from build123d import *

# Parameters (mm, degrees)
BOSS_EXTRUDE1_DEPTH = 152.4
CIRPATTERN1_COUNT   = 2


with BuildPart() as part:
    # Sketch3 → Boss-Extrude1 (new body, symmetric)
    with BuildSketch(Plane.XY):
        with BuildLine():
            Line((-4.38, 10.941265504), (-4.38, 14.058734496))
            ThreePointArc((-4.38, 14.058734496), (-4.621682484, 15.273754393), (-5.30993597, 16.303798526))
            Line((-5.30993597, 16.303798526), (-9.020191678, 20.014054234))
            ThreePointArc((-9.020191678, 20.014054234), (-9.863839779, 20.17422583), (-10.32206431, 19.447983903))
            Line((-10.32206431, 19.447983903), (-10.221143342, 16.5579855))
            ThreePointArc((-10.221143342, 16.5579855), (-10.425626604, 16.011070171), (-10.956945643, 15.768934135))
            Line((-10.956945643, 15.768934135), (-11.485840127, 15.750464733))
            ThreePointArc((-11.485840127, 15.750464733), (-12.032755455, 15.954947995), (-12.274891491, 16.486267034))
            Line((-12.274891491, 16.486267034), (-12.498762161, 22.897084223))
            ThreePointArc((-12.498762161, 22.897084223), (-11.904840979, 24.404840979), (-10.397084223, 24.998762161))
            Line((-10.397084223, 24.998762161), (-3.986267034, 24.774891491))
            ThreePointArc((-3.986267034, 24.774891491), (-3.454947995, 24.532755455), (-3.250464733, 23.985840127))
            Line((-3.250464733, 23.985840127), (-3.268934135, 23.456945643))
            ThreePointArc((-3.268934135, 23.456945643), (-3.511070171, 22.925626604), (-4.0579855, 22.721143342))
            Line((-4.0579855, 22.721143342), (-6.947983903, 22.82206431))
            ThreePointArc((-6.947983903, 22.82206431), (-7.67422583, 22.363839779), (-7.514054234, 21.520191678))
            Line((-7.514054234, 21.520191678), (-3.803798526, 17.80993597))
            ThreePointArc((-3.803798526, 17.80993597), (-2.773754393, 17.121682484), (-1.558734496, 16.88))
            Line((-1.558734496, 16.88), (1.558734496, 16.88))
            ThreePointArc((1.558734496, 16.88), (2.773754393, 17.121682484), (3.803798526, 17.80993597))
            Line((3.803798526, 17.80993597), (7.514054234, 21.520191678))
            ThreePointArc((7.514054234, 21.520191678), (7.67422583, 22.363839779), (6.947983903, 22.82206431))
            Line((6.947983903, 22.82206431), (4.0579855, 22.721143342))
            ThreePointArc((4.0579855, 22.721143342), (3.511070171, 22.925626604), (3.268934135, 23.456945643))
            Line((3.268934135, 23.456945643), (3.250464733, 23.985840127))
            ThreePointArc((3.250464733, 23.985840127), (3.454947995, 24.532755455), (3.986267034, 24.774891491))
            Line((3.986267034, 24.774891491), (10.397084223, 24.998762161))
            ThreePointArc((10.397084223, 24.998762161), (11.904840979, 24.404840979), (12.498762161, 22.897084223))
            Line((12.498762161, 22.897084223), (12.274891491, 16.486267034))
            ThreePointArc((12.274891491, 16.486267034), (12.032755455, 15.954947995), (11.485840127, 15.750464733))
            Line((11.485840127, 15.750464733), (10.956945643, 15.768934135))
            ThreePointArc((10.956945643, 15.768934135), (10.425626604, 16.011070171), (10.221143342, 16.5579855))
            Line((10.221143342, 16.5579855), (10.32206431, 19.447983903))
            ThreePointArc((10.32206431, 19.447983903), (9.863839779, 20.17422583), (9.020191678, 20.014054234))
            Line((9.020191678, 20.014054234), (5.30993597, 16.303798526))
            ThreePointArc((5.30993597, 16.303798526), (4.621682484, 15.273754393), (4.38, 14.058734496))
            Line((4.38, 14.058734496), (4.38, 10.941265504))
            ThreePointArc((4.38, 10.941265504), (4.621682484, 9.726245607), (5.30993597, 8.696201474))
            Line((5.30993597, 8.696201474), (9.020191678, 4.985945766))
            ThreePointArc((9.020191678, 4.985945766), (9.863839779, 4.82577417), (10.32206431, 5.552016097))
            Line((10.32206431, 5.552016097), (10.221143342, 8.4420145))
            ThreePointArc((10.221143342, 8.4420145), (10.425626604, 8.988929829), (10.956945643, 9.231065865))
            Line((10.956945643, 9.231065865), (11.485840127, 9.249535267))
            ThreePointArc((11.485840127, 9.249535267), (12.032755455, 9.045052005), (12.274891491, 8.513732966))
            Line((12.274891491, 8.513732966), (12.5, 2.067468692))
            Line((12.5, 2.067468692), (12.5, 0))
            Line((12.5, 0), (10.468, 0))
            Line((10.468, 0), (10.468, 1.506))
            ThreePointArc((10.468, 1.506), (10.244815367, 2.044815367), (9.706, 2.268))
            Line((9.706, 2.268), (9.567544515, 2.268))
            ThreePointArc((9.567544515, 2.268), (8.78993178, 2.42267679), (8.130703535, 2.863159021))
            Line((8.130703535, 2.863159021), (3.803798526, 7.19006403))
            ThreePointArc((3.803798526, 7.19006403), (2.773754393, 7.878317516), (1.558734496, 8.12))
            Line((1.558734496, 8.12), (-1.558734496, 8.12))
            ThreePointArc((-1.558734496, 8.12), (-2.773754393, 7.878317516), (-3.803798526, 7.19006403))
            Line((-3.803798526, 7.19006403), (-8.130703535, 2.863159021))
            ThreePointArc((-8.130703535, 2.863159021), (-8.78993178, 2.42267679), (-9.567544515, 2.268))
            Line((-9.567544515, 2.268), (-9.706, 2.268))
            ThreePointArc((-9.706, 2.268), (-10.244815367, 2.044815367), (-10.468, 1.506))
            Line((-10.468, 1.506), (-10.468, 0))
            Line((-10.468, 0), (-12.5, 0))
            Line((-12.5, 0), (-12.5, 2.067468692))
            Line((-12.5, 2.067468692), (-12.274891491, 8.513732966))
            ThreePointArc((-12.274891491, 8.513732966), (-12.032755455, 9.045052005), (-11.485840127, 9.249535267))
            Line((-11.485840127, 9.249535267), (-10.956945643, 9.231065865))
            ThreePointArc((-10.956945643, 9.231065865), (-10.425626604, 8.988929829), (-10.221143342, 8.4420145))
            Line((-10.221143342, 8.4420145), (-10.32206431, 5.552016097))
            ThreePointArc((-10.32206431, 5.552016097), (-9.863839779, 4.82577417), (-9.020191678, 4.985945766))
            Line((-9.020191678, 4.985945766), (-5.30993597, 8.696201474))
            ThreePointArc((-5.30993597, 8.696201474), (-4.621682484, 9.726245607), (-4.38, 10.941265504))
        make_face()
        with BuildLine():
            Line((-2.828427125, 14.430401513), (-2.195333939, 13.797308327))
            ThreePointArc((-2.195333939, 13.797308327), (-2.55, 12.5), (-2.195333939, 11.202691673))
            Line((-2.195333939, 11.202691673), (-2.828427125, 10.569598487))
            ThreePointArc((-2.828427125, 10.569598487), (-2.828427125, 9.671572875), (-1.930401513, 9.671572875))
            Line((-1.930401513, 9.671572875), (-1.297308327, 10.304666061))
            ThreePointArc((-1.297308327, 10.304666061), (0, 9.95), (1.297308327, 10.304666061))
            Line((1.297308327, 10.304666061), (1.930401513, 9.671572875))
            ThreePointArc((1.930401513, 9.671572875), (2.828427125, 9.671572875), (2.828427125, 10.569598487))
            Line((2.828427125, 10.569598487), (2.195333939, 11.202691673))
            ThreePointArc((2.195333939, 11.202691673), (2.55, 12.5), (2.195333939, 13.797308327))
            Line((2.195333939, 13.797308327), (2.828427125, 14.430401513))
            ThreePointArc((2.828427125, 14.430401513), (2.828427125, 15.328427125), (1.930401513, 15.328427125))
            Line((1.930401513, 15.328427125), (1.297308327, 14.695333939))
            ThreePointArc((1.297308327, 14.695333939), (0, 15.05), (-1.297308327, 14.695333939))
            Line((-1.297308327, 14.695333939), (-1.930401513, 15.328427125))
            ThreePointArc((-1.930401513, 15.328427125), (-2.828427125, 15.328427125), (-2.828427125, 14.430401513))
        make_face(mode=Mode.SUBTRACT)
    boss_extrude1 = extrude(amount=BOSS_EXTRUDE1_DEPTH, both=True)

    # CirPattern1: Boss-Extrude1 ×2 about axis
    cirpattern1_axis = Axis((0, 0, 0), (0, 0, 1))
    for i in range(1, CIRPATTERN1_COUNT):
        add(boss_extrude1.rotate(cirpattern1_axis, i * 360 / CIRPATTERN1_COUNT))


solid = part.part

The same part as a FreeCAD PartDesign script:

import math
import FreeCAD as App
import Part
import Sketcher

V = App.Vector
Q = App.Units.Quantity

doc = App.newDocument("Part")
body = doc.addObject("PartDesign::Body", "Body")

# Sketch on XY plane
sketch1 = doc.addObject("Sketcher::SketchObject", "Sketch")
body.addObject(sketch1)
sketch1.AttachmentSupport = (doc.XY_Plane, [""])
sketch1.MapMode = "FlatFace"
sketch1.addGeometry([
    Part.LineSegment(V(-4.38, 14.06, 0), V(-4.38, 10.94, 0)),  # 0
    Part.ArcOfCircle(Part.Circle(V(-7.55, 10.94, 0), V(0, 0, 1), 3.17), math.radians(-45), math.radians(0)),  # 1
    Part.LineSegment(V(-5.31, 8.7, 0), V(-9.02, 4.99, 0)),  # 2
    Part.ArcOfCircle(Part.Circle(V(-9.56, 5.53, 0), V(0, 0, 1), 0.76), math.radians(178), math.radians(315)),  # 3
    Part.LineSegment(V(-10.32, 5.55, 0), V(-10.22, 8.44, 0)),  # 4
    Part.ArcOfCircle(Part.Circle(V(-10.98, 8.47, 0), V(0, 0, 1), 0.76), math.radians(-2), math.radians(88)),  # 5
    Part.LineSegment(V(-10.96, 9.23, 0), V(-11.49, 9.25, 0)),  # 6
    Part.ArcOfCircle(Part.Circle(V(-11.51, 8.49, 0), V(0, 0, 1), 0.76), math.radians(88), math.radians(178)),  # 7
    Part.LineSegment(V(-12.27, 8.51, 0), V(-12.5, 2.07, 0)),  # 8
    Part.LineSegment(V(-12.5, 2.07, 0), V(-12.5, 0, 0)),  # 9
    Part.LineSegment(V(-12.5, 0, 0), V(-10.47, 0, 0)),  # 10
    Part.LineSegment(V(-10.47, 0, 0), V(-10.47, 1.51, 0)),  # 11
    Part.ArcOfCircle(Part.Circle(V(-9.71, 1.51, 0), V(0, 0, 1), 0.76), math.radians(90), math.radians(180)),  # 12
    Part.LineSegment(V(-9.71, 2.27, 0), V(-9.57, 2.27, 0)),  # 13
    Part.ArcOfCircle(Part.Circle(V(-9.57, 4.3, 0), V(0, 0, 1), 2.03), math.radians(-90), math.radians(-45)),  # 14
    Part.LineSegment(V(-8.13, 2.86, 0), V(-3.8, 7.19, 0)),  # 15
    Part.ArcOfCircle(Part.Circle(V(-1.56, 4.95, 0), V(0, 0, 1), 3.17), math.radians(90), math.radians(135)),  # 16
    Part.LineSegment(V(-1.56, 8.12, 0), V(1.56, 8.12, 0)),  # 17
    Part.ArcOfCircle(Part.Circle(V(1.56, 4.95, 0), V(0, 0, 1), 3.17), math.radians(45), math.radians(90)),  # 18
    Part.LineSegment(V(3.8, 7.19, 0), V(8.13, 2.86, 0)),  # 19
    Part.ArcOfCircle(Part.Circle(V(9.57, 4.3, 0), V(0, 0, 1), 2.03), math.radians(-135), math.radians(-90)),  # 20
    Part.LineSegment(V(9.57, 2.27, 0), V(9.71, 2.27, 0)),  # 21
    Part.ArcOfCircle(Part.Circle(V(9.71, 1.51, 0), V(0, 0, 1), 0.76), math.radians(0), math.radians(90)),  # 22
    Part.LineSegment(V(10.47, 1.51, 0), V(10.47, 0, 0)),  # 23
    Part.LineSegment(V(10.47, 0, 0), V(12.5, 0, 0)),  # 24
    Part.LineSegment(V(12.5, 0, 0), V(12.5, 2.07, 0)),  # 25
    Part.LineSegment(V(12.5, 2.07, 0), V(12.27, 8.51, 0)),  # 26
    Part.ArcOfCircle(Part.Circle(V(11.51, 8.49, 0), V(0, 0, 1), 0.76), math.radians(2), math.radians(92)),  # 27
    Part.LineSegment(V(11.49, 9.25, 0), V(10.96, 9.23, 0)),  # 28
    Part.ArcOfCircle(Part.Circle(V(10.98, 8.47, 0), V(0, 0, 1), 0.76), math.radians(92), math.radians(182)),  # 29
    Part.LineSegment(V(10.22, 8.44, 0), V(10.32, 5.55, 0)),  # 30
    Part.ArcOfCircle(Part.Circle(V(9.56, 5.53, 0), V(0, 0, 1), 0.76), math.radians(-135), math.radians(2)),  # 31
    Part.LineSegment(V(9.02, 4.99, 0), V(5.31, 8.7, 0)),  # 32
    Part.ArcOfCircle(Part.Circle(V(7.55, 10.94, 0), V(0, 0, 1), 3.17), math.radians(180), math.radians(225)),  # 33
    Part.LineSegment(V(4.38, 10.94, 0), V(4.38, 14.06, 0)),  # 34
    Part.ArcOfCircle(Part.Circle(V(7.55, 14.06, 0), V(0, 0, 1), 3.17), math.radians(135), math.radians(180)),  # 35
    Part.LineSegment(V(5.31, 16.3, 0), V(9.02, 20.01, 0)),  # 36
    Part.ArcOfCircle(Part.Circle(V(9.56, 19.47, 0), V(0, 0, 1), 0.76), math.radians(-2), math.radians(135)),  # 37
    Part.LineSegment(V(10.32, 19.45, 0), V(10.22, 16.56, 0)),  # 38
    Part.ArcOfCircle(Part.Circle(V(10.98, 16.53, 0), V(0, 0, 1), 0.76), math.radians(178), math.radians(268)),  # 39
    Part.LineSegment(V(10.96, 15.77, 0), V(11.49, 15.75, 0)),  # 40
    Part.ArcOfCircle(Part.Circle(V(11.51, 16.51, 0), V(0, 0, 1), 0.76), math.radians(-92), math.radians(-2)),  # 41
    Part.LineSegment(V(12.27, 16.49, 0), V(12.5, 22.9, 0)),  # 42
    Part.ArcOfCircle(Part.Circle(V(10.47, 22.97, 0), V(0, 0, 1), 2.03), math.radians(-2), math.radians(92)),  # 43
    Part.LineSegment(V(10.4, 25, 0), V(3.99, 24.77, 0)),  # 44
    Part.ArcOfCircle(Part.Circle(V(4.01, 24.01, 0), V(0, 0, 1), 0.76), math.radians(92), math.radians(182)),  # 45
    Part.LineSegment(V(3.25, 23.99, 0), V(3.27, 23.46, 0)),  # 46
    Part.ArcOfCircle(Part.Circle(V(4.03, 23.48, 0), V(0, 0, 1), 0.76), math.radians(-178), math.radians(-88)),  # 47
    Part.LineSegment(V(4.06, 22.72, 0), V(6.95, 22.82, 0)),  # 48
    Part.ArcOfCircle(Part.Circle(V(6.97, 22.06, 0), V(0, 0, 1), 0.76), math.radians(-45), math.radians(92)),  # 49
    Part.LineSegment(V(7.51, 21.52, 0), V(3.8, 17.81, 0)),  # 50
    Part.ArcOfCircle(Part.Circle(V(1.56, 20.05, 0), V(0, 0, 1), 3.17), math.radians(-90), math.radians(-45)),  # 51
    Part.LineSegment(V(1.56, 16.88, 0), V(-1.56, 16.88, 0)),  # 52
    Part.ArcOfCircle(Part.Circle(V(-1.56, 20.05, 0), V(0, 0, 1), 3.17), math.radians(-135), math.radians(-90)),  # 53
    Part.LineSegment(V(-3.8, 17.81, 0), V(-7.51, 21.52, 0)),  # 54
    Part.ArcOfCircle(Part.Circle(V(-6.97, 22.06, 0), V(0, 0, 1), 0.76), math.radians(88), math.radians(225)),  # 55
    Part.LineSegment(V(-6.95, 22.82, 0), V(-4.06, 22.72, 0)),  # 56
    Part.ArcOfCircle(Part.Circle(V(-4.03, 23.48, 0), V(0, 0, 1), 0.76), math.radians(-92), math.radians(-2)),  # 57
    Part.LineSegment(V(-3.27, 23.46, 0), V(-3.25, 23.99, 0)),  # 58
    Part.ArcOfCircle(Part.Circle(V(-4.01, 24.01, 0), V(0, 0, 1), 0.76), math.radians(-2), math.radians(88)),  # 59
    Part.LineSegment(V(-3.99, 24.77, 0), V(-10.4, 25, 0)),  # 60
    Part.ArcOfCircle(Part.Circle(V(-10.47, 22.97, 0), V(0, 0, 1), 2.03), math.radians(88), math.radians(182)),  # 61
    Part.LineSegment(V(-12.5, 22.9, 0), V(-12.27, 16.49, 0)),  # 62
    Part.ArcOfCircle(Part.Circle(V(-11.51, 16.51, 0), V(0, 0, 1), 0.76), math.radians(-178), math.radians(-88)),  # 63
    Part.LineSegment(V(-11.49, 15.75, 0), V(-10.96, 15.77, 0)),  # 64
    Part.ArcOfCircle(Part.Circle(V(-10.98, 16.53, 0), V(0, 0, 1), 0.76), math.radians(-88), math.radians(2)),  # 65
    Part.LineSegment(V(-10.22, 16.56, 0), V(-10.32, 19.45, 0)),  # 66
    Part.ArcOfCircle(Part.Circle(V(-9.56, 19.47, 0), V(0, 0, 1), 0.76), math.radians(45), math.radians(182)),  # 67
    Part.LineSegment(V(-9.02, 20.01, 0), V(-5.31, 16.3, 0)),  # 68
    Part.ArcOfCircle(Part.Circle(V(-7.55, 14.06, 0), V(0, 0, 1), 3.17), math.radians(0), math.radians(45)),  # 69
    Part.ArcOfCircle(Part.Circle(V(-2.38, 14.88, 0), V(0, 0, 1), 0.64), math.radians(45), math.radians(225)),  # 70
    Part.LineSegment(V(-1.93, 15.33, 0), V(-1.3, 14.7, 0)),  # 71
    Part.ArcOfCircle(Part.Circle(V(0, 12.5, 0), V(0, 0, 1), 2.55), math.radians(59), math.radians(121)),  # 72
    Part.LineSegment(V(1.3, 14.7, 0), V(1.93, 15.33, 0)),  # 73
    Part.ArcOfCircle(Part.Circle(V(2.38, 14.88, 0), V(0, 0, 1), 0.64), math.radians(-45), math.radians(135)),  # 74
    Part.LineSegment(V(2.83, 14.43, 0), V(2.2, 13.8, 0)),  # 75
    Part.ArcOfCircle(Part.Circle(V(0, 12.5, 0), V(0, 0, 1), 2.55), math.radians(-31), math.radians(31)),  # 76
    Part.LineSegment(V(2.2, 11.2, 0), V(2.83, 10.57, 0)),  # 77
    Part.ArcOfCircle(Part.Circle(V(2.38, 10.12, 0), V(0, 0, 1), 0.64), math.radians(-135), math.radians(45)),  # 78
    Part.LineSegment(V(1.93, 9.67, 0), V(1.3, 10.3, 0)),  # 79
    Part.ArcOfCircle(Part.Circle(V(0, 12.5, 0), V(0, 0, 1), 2.55), math.radians(-121), math.radians(-59)),  # 80
    Part.LineSegment(V(-1.3, 10.3, 0), V(-1.93, 9.67, 0)),  # 81
    Part.ArcOfCircle(Part.Circle(V(-2.38, 10.12, 0), V(0, 0, 1), 0.64), math.radians(135), math.radians(315)),  # 82
    Part.LineSegment(V(-2.83, 10.57, 0), V(-2.2, 11.2, 0)),  # 83
    Part.ArcOfCircle(Part.Circle(V(0, 12.5, 0), V(0, 0, 1), 2.55), math.radians(149), math.radians(211)),  # 84
    Part.LineSegment(V(-2.2, 13.8, 0), V(-2.83, 14.43, 0)),  # 85
], False)
sketch1.addConstraint([
    Sketcher.Constraint("Tangent", 0, 2, 1, 2),
    Sketcher.Constraint("Tangent", 1, 1, 2, 1),
    Sketcher.Constraint("Tangent", 2, 2, 3, 2),
    Sketcher.Constraint("Tangent", 3, 1, 4, 1),
    Sketcher.Constraint("Tangent", 4, 2, 5, 1),
    Sketcher.Constraint("Tangent", 5, 2, 6, 1),
    Sketcher.Constraint("Tangent", 6, 2, 7, 1),
    Sketcher.Constraint("Tangent", 7, 2, 8, 1),
    Sketcher.Constraint("Coincident", 8, 2, 9, 1),
    Sketcher.Constraint("Coincident", 9, 2, 10, 1),
    Sketcher.Constraint("Coincident", 10, 2, 11, 1),
    Sketcher.Constraint("Tangent", 11, 2, 12, 2),
    Sketcher.Constraint("Tangent", 12, 1, 13, 1),
    Sketcher.Constraint("Tangent", 13, 2, 14, 1),
    Sketcher.Constraint("Tangent", 14, 2, 15, 1),
    Sketcher.Constraint("Tangent", 15, 2, 16, 2),
    Sketcher.Constraint("Tangent", 16, 1, 17, 1),
    Sketcher.Constraint("Tangent", 17, 2, 18, 2),
    Sketcher.Constraint("Tangent", 18, 1, 19, 1),
    Sketcher.Constraint("Tangent", 19, 2, 20, 1),
    Sketcher.Constraint("Tangent", 20, 2, 21, 1),
    Sketcher.Constraint("Tangent", 21, 2, 22, 2),
    Sketcher.Constraint("Tangent", 22, 1, 23, 1),
    Sketcher.Constraint("Coincident", 23, 2, 24, 1),
    Sketcher.Constraint("Coincident", 24, 2, 25, 1),
    Sketcher.Constraint("Coincident", 25, 2, 26, 1),
    Sketcher.Constraint("Tangent", 26, 2, 27, 1),
    Sketcher.Constraint("Tangent", 27, 2, 28, 1),
    Sketcher.Constraint("Tangent", 28, 2, 29, 1),
    Sketcher.Constraint("Tangent", 29, 2, 30, 1),
    Sketcher.Constraint("Tangent", 30, 2, 31, 2),
    Sketcher.Constraint("Tangent", 31, 1, 32, 1),
    Sketcher.Constraint("Tangent", 32, 2, 33, 2),
    Sketcher.Constraint("Tangent", 33, 1, 34, 1),
    Sketcher.Constraint("Tangent", 34, 2, 35, 2),
    Sketcher.Constraint("Tangent", 35, 1, 36, 1),
    Sketcher.Constraint("Tangent", 36, 2, 37, 2),
    Sketcher.Constraint("Tangent", 37, 1, 38, 1),
    Sketcher.Constraint("Tangent", 38, 2, 39, 1),
    Sketcher.Constraint("Tangent", 39, 2, 40, 1),
    Sketcher.Constraint("Tangent", 40, 2, 41, 1),
    Sketcher.Constraint("Tangent", 41, 2, 42, 1),
    Sketcher.Constraint("Tangent", 42, 2, 43, 1),
    Sketcher.Constraint("Tangent", 43, 2, 44, 1),
    Sketcher.Constraint("Tangent", 44, 2, 45, 1),
    Sketcher.Constraint("Tangent", 45, 2, 46, 1),
    Sketcher.Constraint("Tangent", 46, 2, 47, 1),
    Sketcher.Constraint("Tangent", 47, 2, 48, 1),
    Sketcher.Constraint("Tangent", 48, 2, 49, 2),
    Sketcher.Constraint("Tangent", 49, 1, 50, 1),
    Sketcher.Constraint("Tangent", 50, 2, 51, 2),
    Sketcher.Constraint("Tangent", 51, 1, 52, 1),
    Sketcher.Constraint("Tangent", 52, 2, 53, 2),
    Sketcher.Constraint("Tangent", 53, 1, 54, 1),
    Sketcher.Constraint("Tangent", 54, 2, 55, 2),
    Sketcher.Constraint("Tangent", 55, 1, 56, 1),
    Sketcher.Constraint("Tangent", 56, 2, 57, 1),
    Sketcher.Constraint("Tangent", 57, 2, 58, 1),
    Sketcher.Constraint("Tangent", 58, 2, 59, 1),
    Sketcher.Constraint("Tangent", 59, 2, 60, 1),
    Sketcher.Constraint("Tangent", 60, 2, 61, 1),
    Sketcher.Constraint("Tangent", 61, 2, 62, 1),
    Sketcher.Constraint("Tangent", 62, 2, 63, 1),
    Sketcher.Constraint("Tangent", 63, 2, 64, 1),
    Sketcher.Constraint("Tangent", 64, 2, 65, 1),
    Sketcher.Constraint("Tangent", 65, 2, 66, 1),
    Sketcher.Constraint("Tangent", 66, 2, 67, 2),
    Sketcher.Constraint("Tangent", 67, 1, 68, 1),
    Sketcher.Constraint("Tangent", 68, 2, 69, 2),
    Sketcher.Constraint("Tangent", 69, 1, 0, 1),
    Sketcher.Constraint("Tangent", 70, 1, 71, 1),
    Sketcher.Constraint("Coincident", 71, 2, 72, 2),
    Sketcher.Constraint("Coincident", 72, 1, 73, 1),
    Sketcher.Constraint("Tangent", 73, 2, 74, 2),
    Sketcher.Constraint("Tangent", 74, 1, 75, 1),
    Sketcher.Constraint("Coincident", 75, 2, 76, 2),
    Sketcher.Constraint("Coincident", 76, 1, 77, 1),
    Sketcher.Constraint("Tangent", 77, 2, 78, 2),
    Sketcher.Constraint("Tangent", 78, 1, 79, 1),
    Sketcher.Constraint("Coincident", 79, 2, 80, 2),
    Sketcher.Constraint("Coincident", 80, 1, 81, 1),
    Sketcher.Constraint("Tangent", 81, 2, 82, 2),
    Sketcher.Constraint("Tangent", 82, 1, 83, 1),
    Sketcher.Constraint("Coincident", 83, 2, 84, 2),
    Sketcher.Constraint("Coincident", 84, 1, 85, 1),
    Sketcher.Constraint("Tangent", 85, 2, 70, 2),
    Sketcher.Constraint("Vertical", 0),
    Sketcher.Constraint("Vertical", 9),
    Sketcher.Constraint("Horizontal", 10),
    Sketcher.Constraint("Vertical", 11),
    Sketcher.Constraint("Horizontal", 13),
    Sketcher.Constraint("Horizontal", 17),
    Sketcher.Constraint("Horizontal", 21),
    Sketcher.Constraint("Vertical", 23),
    Sketcher.Constraint("Horizontal", 24),
    Sketcher.Constraint("Vertical", 25),
    Sketcher.Constraint("Vertical", 34),
    Sketcher.Constraint("Horizontal", 52),
    Sketcher.Constraint("Coincident", 76, 3, 72, 3),
    Sketcher.Constraint("Coincident", 80, 3, 72, 3),
    Sketcher.Constraint("Coincident", 84, 3, 72, 3),
    Sketcher.Constraint("Equal", 3, 5),
    Sketcher.Constraint("Equal", 5, 7),
    Sketcher.Constraint("Equal", 1, 16),
    Sketcher.Constraint("Equal", 16, 18),
    Sketcher.Constraint("Equal", 14, 20),
    Sketcher.Constraint("Equal", 12, 22),
    Sketcher.Constraint("Equal", 7, 27),
    Sketcher.Constraint("Equal", 27, 29),
    Sketcher.Constraint("Equal", 29, 31),
    Sketcher.Constraint("Equal", 18, 33),
    Sketcher.Constraint("Equal", 33, 35),
    Sketcher.Constraint("Equal", 31, 37),
    Sketcher.Constraint("Equal", 37, 39),
    Sketcher.Constraint("Equal", 39, 41),
    Sketcher.Constraint("Equal", 20, 43),
    Sketcher.Constraint("Equal", 41, 45),
    Sketcher.Constraint("Equal", 45, 47),
    Sketcher.Constraint("Equal", 47, 49),
    Sketcher.Constraint("Equal", 35, 51),
    Sketcher.Constraint("Equal", 51, 53),
    Sketcher.Constraint("Equal", 49, 55),
    Sketcher.Constraint("Equal", 55, 57),
    Sketcher.Constraint("Equal", 57, 59),
    Sketcher.Constraint("Equal", 43, 61),
    Sketcher.Constraint("Equal", 59, 63),
    Sketcher.Constraint("Equal", 63, 65),
    Sketcher.Constraint("Equal", 65, 67),
    Sketcher.Constraint("Equal", 53, 69),
    Sketcher.Constraint("Equal", 70, 74),
    Sketcher.Constraint("Equal", 72, 76),
    Sketcher.Constraint("Equal", 74, 78),
    Sketcher.Constraint("Equal", 76, 80),
    Sketcher.Constraint("Equal", 78, 82),
    Sketcher.Constraint("Equal", 80, 84),
    Sketcher.Constraint("Symmetric", 10, 2, 23, 2, -1, 1),
    Sketcher.Constraint("Symmetric", 14, 3, 20, 3, -2),
    Sketcher.Constraint("Symmetric", 7, 3, 27, 3, -2),
    Sketcher.Constraint("Symmetric", 5, 3, 29, 3, -2),
    Sketcher.Constraint("Symmetric", 3, 3, 31, 3, -2),
    Sketcher.Constraint("Symmetric", 1, 3, 33, 3, -2),
    Sketcher.Constraint("Symmetric", 49, 3, 55, 3, -2),
    Sketcher.Constraint("Symmetric", 47, 3, 57, 3, -2),
    Sketcher.Constraint("Symmetric", 45, 3, 59, 3, -2),
    Sketcher.Constraint("Symmetric", 43, 3, 61, 3, -2),
    Sketcher.Constraint("Symmetric", 41, 3, 63, 3, -2),
    Sketcher.Constraint("Symmetric", 39, 3, 65, 3, -2),
    Sketcher.Constraint("Symmetric", 37, 3, 67, 3, -2),
    Sketcher.Constraint("Symmetric", 70, 3, 74, 3, -2),
    Sketcher.Constraint("Symmetric", 78, 3, 82, 3, -2),
    Sketcher.Constraint("Symmetric", 9, 2, 24, 2, -2),
    Sketcher.Constraint("Symmetric", 71, 2, 72, 1, -2),
    Sketcher.Constraint("Perpendicular", 4, 6),
    Sketcher.Constraint("Perpendicular", 6, 8),
    Sketcher.Constraint("Parallel", 2, 15),
    Sketcher.Constraint("Perpendicular", 15, 19),
    Sketcher.Constraint("Perpendicular", 26, 28),
    Sketcher.Constraint("Parallel", 19, 32),
    Sketcher.Constraint("Perpendicular", 32, 36),
    Sketcher.Constraint("Parallel", 8, 38),
    Sketcher.Constraint("Perpendicular", 38, 40),
    Sketcher.Constraint("Perpendicular", 40, 42),
    Sketcher.Constraint("Perpendicular", 30, 44),
    Sketcher.Constraint("Perpendicular", 44, 46),
    Sketcher.Constraint("Perpendicular", 46, 48),
    Sketcher.Constraint("Parallel", 36, 50),
    Sketcher.Constraint("Perpendicular", 50, 54),
    Sketcher.Constraint("Parallel", 54, 68),
    Sketcher.Constraint("Parallel", 68, 71),
    Sketcher.Constraint("Parallel", 73, 75),
    Sketcher.Constraint("Perpendicular", 75, 77),
    Sketcher.Constraint("Parallel", 77, 79),
    Sketcher.Constraint("Perpendicular", 79, 81),
    Sketcher.Constraint("Parallel", 81, 83),
    Sketcher.Constraint("Perpendicular", 83, 85),
    Sketcher.Constraint("Vertical", 31, 3, 37, 3),
    Sketcher.Constraint("Vertical", 29, 3, 39, 3),
    Sketcher.Constraint("Vertical", 27, 3, 41, 3),
    Sketcher.Constraint("Vertical", 18, 3, 51, 3),
    Sketcher.Constraint("Vertical", 74, 3, 78, 3),
    Sketcher.Constraint("Vertical", 61, 3, 10, 2),
    Sketcher.Constraint("Vertical", 75, 2, 76, 1),
    Sketcher.Constraint("Equal", 52, 0),
    Sketcher.Constraint("Equal", 42, 44),
    Sketcher.Constraint("Equal", 40, 46),
    Sketcher.Constraint("Equal", 38, 48),
    Sketcher.Constraint("Equal", 36, 50),
    Sketcher.Constraint("Equal", 73, 75),
    Sketcher.Constraint("Radius", 12, Q("0.03 in")),
    Sketcher.Constraint("Radius", 14, Q("0.08 in")),
    Sketcher.Constraint("Angle", 4, Q("88 deg")),
    Sketcher.Constraint("Radius", 1, Q("0.125 in")),
    Sketcher.Constraint("Radius", 70, Q("0.025 in")),
    Sketcher.Constraint("DistanceX", 10, 1, 10, 2, Q("0.08 in")),
    Sketcher.Constraint("Radius", 72, 2.55),
    Sketcher.Constraint("DistanceX", 70, 1, -1, 1, Q("0.0760001 in")),
    Sketcher.Constraint("Radius", 3, 0.762892),
    Sketcher.Constraint("DistanceY", 11, 1, 11, 2, 1.506),
    Sketcher.Constraint("DistanceX", 17, 1, 17, 2, 3.117469),
    Sketcher.Constraint("DistanceY", 9, 2, 9, 1, 2.067469),
    Sketcher.Constraint("DistanceX", 1, 3, -1, 1, 7.555),
    Sketcher.Constraint("DistanceX", 12, 3, -1, 1, 9.706),
    Sketcher.Constraint("DistanceY", -1, 1, 16, 3, 4.945),
    Sketcher.Constraint("DistanceY", -1, 1, 72, 3, 12.5),
    Sketcher.Constraint("Distance", 4, 2.89176),
    Sketcher.Constraint("DistanceY", -1, 1, 3, 3, 5.525392),
])
pad1 = doc.addObject("PartDesign::Pad", "Pad")
body.addObject(pad1)
pad1.Profile = sketch1
pad1.Length = Q("12 in")
pad1.Midplane = True
doc.recompute()

polarpattern = doc.addObject("PartDesign::PolarPattern", "PolarPattern")
body.addObject(polarpattern)
polarpattern.Originals = [pad1]
polarpattern.Axis = (doc.Z_Axis, [""])
polarpattern.Angle = 360
polarpattern.Occurrences = 2
body.Tip = polarpattern

doc.recompute()
